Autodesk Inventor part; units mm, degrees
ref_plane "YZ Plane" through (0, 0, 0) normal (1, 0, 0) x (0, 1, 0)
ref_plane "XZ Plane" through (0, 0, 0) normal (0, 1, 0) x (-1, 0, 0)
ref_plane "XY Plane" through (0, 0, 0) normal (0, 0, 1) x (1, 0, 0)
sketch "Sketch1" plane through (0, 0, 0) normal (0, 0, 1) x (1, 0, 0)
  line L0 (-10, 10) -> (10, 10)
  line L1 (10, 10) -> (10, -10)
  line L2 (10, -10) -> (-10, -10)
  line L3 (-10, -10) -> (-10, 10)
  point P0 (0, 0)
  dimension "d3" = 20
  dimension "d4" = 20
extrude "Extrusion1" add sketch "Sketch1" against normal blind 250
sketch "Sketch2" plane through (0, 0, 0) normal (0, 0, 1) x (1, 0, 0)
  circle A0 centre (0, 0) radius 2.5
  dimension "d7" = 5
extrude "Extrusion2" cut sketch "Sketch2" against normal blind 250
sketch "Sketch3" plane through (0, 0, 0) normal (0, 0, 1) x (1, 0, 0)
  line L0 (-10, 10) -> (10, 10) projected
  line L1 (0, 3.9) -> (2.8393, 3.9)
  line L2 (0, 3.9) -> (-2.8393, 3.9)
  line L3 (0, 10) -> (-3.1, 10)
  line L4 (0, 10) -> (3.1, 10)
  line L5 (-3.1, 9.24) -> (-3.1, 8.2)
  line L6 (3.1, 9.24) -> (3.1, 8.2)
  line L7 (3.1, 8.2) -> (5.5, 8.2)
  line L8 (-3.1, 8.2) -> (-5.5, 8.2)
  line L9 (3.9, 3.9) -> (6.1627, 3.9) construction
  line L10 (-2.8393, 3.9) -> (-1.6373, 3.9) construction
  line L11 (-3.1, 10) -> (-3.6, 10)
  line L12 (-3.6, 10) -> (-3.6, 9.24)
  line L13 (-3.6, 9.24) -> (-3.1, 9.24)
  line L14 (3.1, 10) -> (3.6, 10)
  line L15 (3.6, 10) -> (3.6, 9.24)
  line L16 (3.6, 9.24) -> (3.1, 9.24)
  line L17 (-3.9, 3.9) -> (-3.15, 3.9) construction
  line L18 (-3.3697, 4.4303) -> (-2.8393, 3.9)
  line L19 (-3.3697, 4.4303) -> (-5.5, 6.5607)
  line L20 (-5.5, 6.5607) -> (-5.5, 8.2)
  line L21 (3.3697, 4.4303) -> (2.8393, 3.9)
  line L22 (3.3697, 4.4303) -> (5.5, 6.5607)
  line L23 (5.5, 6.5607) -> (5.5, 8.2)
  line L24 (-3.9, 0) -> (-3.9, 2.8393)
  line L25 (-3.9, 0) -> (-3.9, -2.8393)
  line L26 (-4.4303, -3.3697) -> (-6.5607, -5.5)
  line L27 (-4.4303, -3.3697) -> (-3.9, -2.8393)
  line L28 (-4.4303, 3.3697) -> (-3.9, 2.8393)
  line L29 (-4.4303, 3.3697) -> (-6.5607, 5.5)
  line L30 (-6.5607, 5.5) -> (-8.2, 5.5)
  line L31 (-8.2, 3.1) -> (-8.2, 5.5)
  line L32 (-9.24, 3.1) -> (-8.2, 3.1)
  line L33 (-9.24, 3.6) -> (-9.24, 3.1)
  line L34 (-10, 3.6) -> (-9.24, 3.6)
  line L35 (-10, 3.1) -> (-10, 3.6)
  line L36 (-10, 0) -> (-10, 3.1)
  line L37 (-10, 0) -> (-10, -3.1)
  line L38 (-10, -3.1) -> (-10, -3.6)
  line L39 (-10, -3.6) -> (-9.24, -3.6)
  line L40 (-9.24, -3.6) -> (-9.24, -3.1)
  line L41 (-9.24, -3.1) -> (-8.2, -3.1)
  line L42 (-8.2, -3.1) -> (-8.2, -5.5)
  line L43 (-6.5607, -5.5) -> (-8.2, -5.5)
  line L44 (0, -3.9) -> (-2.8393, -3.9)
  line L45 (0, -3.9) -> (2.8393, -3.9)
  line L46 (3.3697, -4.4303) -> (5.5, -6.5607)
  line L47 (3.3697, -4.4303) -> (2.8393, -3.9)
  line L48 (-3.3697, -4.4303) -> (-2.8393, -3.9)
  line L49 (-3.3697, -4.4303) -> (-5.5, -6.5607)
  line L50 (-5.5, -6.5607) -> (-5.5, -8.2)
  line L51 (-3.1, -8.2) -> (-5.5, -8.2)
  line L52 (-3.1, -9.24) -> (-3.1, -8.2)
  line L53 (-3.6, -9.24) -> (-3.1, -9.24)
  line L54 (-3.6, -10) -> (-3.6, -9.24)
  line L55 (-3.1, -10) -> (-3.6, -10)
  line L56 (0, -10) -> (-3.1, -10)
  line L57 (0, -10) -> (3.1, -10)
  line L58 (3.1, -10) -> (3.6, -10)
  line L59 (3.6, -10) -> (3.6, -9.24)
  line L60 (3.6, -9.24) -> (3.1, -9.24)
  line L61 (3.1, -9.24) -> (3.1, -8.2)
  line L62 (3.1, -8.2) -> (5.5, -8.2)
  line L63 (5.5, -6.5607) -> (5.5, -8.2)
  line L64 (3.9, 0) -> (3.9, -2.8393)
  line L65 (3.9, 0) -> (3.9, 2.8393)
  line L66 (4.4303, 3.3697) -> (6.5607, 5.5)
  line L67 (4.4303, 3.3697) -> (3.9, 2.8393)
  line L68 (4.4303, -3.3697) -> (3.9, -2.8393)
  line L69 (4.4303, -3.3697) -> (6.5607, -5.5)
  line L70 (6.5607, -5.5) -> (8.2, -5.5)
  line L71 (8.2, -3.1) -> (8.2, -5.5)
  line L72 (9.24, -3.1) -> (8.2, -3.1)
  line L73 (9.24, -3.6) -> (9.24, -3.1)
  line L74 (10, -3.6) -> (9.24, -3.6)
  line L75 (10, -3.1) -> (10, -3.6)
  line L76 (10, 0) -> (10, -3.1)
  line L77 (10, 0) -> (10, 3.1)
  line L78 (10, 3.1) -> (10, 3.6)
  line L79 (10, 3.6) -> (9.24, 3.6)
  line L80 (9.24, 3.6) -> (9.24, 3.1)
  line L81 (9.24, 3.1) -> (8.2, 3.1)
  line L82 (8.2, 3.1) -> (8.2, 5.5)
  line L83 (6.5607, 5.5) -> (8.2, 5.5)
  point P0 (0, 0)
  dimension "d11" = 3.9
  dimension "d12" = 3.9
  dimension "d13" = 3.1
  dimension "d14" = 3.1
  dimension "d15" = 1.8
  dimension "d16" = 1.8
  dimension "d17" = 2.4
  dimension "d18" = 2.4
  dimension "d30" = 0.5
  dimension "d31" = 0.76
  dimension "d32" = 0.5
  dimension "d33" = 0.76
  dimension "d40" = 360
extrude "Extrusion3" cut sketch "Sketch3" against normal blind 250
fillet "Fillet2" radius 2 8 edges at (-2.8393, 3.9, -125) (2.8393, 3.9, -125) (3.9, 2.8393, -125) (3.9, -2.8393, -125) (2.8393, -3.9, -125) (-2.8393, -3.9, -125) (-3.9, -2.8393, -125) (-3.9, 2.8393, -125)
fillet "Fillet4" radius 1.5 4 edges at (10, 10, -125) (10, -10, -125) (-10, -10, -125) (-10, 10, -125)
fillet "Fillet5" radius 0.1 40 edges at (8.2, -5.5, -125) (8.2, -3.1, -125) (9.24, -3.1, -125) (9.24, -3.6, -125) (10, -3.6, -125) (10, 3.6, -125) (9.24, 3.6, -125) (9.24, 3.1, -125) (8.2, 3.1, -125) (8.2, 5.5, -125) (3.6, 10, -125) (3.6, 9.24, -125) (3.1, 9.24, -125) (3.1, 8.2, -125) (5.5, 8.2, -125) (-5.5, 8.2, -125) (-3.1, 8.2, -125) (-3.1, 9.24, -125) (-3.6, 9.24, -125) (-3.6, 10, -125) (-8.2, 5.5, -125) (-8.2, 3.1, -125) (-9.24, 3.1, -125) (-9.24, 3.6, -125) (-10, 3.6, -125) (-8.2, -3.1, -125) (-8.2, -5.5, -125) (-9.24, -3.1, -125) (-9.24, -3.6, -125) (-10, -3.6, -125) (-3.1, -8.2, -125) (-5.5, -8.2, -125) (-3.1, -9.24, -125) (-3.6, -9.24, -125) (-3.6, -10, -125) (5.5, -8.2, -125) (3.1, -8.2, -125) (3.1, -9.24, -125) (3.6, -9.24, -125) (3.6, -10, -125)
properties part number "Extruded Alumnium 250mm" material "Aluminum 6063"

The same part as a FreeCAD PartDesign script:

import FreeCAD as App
import Part
import Sketcher
Q = App.Units.Quantity


def edges_at(feature, points):
    """Names of the edges that pass closest to the given points."""
    edges = feature.Shape.Edges
    near = lambda p: min(range(len(edges)), key=lambda i: edges[i].distToShape(Part.Vertex(*p))[0])
    return sorted({f"Edge{near(p) + 1}" for p in points})


def add_polygon(sketch, points):
    """Adds a closed chain of lines whose ends are joined by coincident constraints."""
    first, n = sketch.GeometryCount, len(points)
    for a, b in zip(points, points[1:] + points[:1]):
        sketch.addGeometry(Part.LineSegment(App.Vector(*a, 0), App.Vector(*b, 0)), False)
    for i in range(n):
        sketch.addConstraint(Sketcher.Constraint("Coincident", first + i, 2, first + (i + 1) % n, 1))

doc = App.newDocument("Part")
params = doc.addObject("Spreadsheet::Sheet", "Params")
for row, (alias, value) in enumerate([
    ("sketch1_width", "20 mm"),
    ("pad1_length", "250 mm"),
    ("sketch2_diameter", "5 mm"),
    ("pocket1_length", "250 mm"),
    ("sketch3_width", "0.5 mm"),
    ("sketch3_width2", "2.4 mm"),
    ("sketch3_width3", "0.76 mm"),
    ("sketch3_width4", "1.04 mm"),
    ("sketch3_length", "0.75 mm"),
    ("pocket2_length", "250 mm"),
    ("fillet_radius", "2 mm"),
    ("fillet2_radius", "1.5 mm"),
    ("fillet3_radius", "0.1 mm"),
], start=1):
    params.set(f"A{row}", alias)
    params.set(f"B{row}", "=" + value)
    params.setAlias(f"B{row}", alias)

body = doc.addObject("PartDesign::Body", "Body")

sketch1 = doc.addObject("Sketcher::SketchObject", "Sketch")
body.addObject(sketch1)
sketch1.AttachmentSupport = (doc.XY_Plane, [""])
sketch1.MapMode = "FlatFace"
add_polygon(sketch1, [(10, 10), (-10, 10), (-10, -10), (10, -10)])
sketch1.addConstraint(Sketcher.Constraint("Horizontal", 0))
sketch1.addConstraint(Sketcher.Constraint("Vertical", 1))
sketch1.addConstraint(Sketcher.Constraint("Horizontal", 2))
sketch1.addConstraint(Sketcher.Constraint("Vertical", 3))
sketch1.addConstraint(Sketcher.Constraint("Symmetric", 0, 2, 2, 2, -1, 1))
sketch1.addConstraint(Sketcher.Constraint("Equal", 2, 1))
sketch1.addConstraint(Sketcher.Constraint("DistanceX", 0, 2, 0, 1, Q("20 mm")))
sketch1.setExpression("Constraints[10]", "Params.sketch1_width")
pad1 = doc.addObject("PartDesign::Pad", "Pad")
body.addObject(pad1)
pad1.Profile = sketch1
pad1.setExpression("Length", "Params.pad1_length")
pad1.Reversed = True

sketch2 = doc.addObject("Sketcher::SketchObject", "Sketch001")
body.addObject(sketch2)
sketch2.AttachmentSupport = (doc.XY_Plane, [""])
sketch2.MapMode = "FlatFace"
sketch2.addGeometry(Part.Circle(App.Vector(0, 0, 0), App.Vector(0, 0, 1), 2.5), False)
sketch2.addConstraint(Sketcher.Constraint("Coincident", 0, 3, -1, 1))
sketch2.addConstraint(Sketcher.Constraint("Diameter", 0, Q("5 mm")))
sketch2.setExpression("Constraints[1]", "Params.sketch2_diameter")
pocket1 = doc.addObject("PartDesign::Pocket", "Pocket")
body.addObject(pocket1)
pocket1.Profile = sketch2
pocket1.setExpression("Length", "Params.pocket1_length")

sketch3 = doc.addObject("Sketcher::SketchObject", "Sketch002")
body.addObject(sketch3)
sketch3.AttachmentSupport = (doc.XY_Plane, [""])
sketch3.MapMode = "FlatFace"
add_polygon(sketch3, [(3.6, 10), (-3.6, 10), (-3.6, 9.2), (-3.1, 9.2), (-3.1, 8.2), (-5.5, 8.2), (-5.5, 6.6), (-3.4, 4.4), (-2.8, 3.9), (2.8, 3.9), (3.4, 4.4), (5.5, 6.6), (5.5, 8.2), (3.1, 8.2), (3.1, 9.2), (3.6, 9.2)])
add_polygon(sketch3, [(-3.9, -2.8), (-3.9, 2.8), (-4.4, 3.4), (-6.6, 5.5), (-8.2, 5.5), (-8.2, 3.1), (-9.2, 3.1), (-9.2, 3.6), (-10, 3.6), (-10, -3.6), (-9.2, -3.6), (-9.2, -3.1), (-8.2, -3.1), (-8.2, -5.5), (-6.6, -5.5), (-4.4, -3.4)])
add_polygon(sketch3, [(2.8, -3.9), (-2.8, -3.9), (-3.4, -4.4), (-5.5, -6.6), (-5.5, -8.2), (-3.1, -8.2), (-3.1, -9.2), (-3.6, -9.2), (-3.6, -10), (3.6, -10), (3.6, -9.2), (3.1, -9.2), (3.1, -8.2), (5.5, -8.2), (5.5, -6.6), (3.4, -4.4)])
add_polygon(sketch3, [(3.9, 2.8), (3.9, -2.8), (4.4, -3.4), (6.6, -5.5), (8.2, -5.5), (8.2, -3.1), (9.2, -3.1), (9.2, -3.6), (10, -3.6), (10, 3.6), (9.2, 3.6), (9.2, 3.1), (8.2, 3.1), (8.2, 5.5), (6.6, 5.5), (4.4, 3.4)])
sketch3.addConstraint(Sketcher.Constraint("Horizontal", 0))
sketch3.addConstraint(Sketcher.Constraint("Vertical", 1))
sketch3.addConstraint(Sketcher.Constraint("Horizontal", 2))
sketch3.addConstraint(Sketcher.Constraint("Vertical", 3))
sketch3.addConstraint(Sketcher.Constraint("Horizontal", 4))
sketch3.addConstraint(Sketcher.Constraint("Vertical", 5))
sketch3.addConstraint(Sketcher.Constraint("Horizontal", 8))
sketch3.addConstraint(Sketcher.Constraint("Vertical", 11))
sketch3.addConstraint(Sketcher.Constraint("Horizontal", 12))
sketch3.addConstraint(Sketcher.Constraint("Vertical", 13))
sketch3.addConstraint(Sketcher.Constraint("Horizontal", 14))
sketch3.addConstraint(Sketcher.Constraint("Vertical", 15))
sketch3.addConstraint(Sketcher.Constraint("Vertical", 16))
sketch3.addConstraint(Sketcher.Constraint("Horizontal", 19))
sketch3.addConstraint(Sketcher.Constraint("Vertical", 20))
sketch3.addConstraint(Sketcher.Constraint("Horizontal", 21))
sketch3.addConstraint(Sketcher.Constraint("Vertical", 22))
sketch3.addConstraint(Sketcher.Constraint("Horizontal", 23))
sketch3.addConstraint(Sketcher.Constraint("Vertical", 24))
sketch3.addConstraint(Sketcher.Constraint("Horizontal", 25))
sketch3.addConstraint(Sketcher.Constraint("Vertical", 26))
sketch3.addConstraint(Sketcher.Constraint("Horizontal", 27))
sketch3.addConstraint(Sketcher.Constraint("Vertical", 28))
sketch3.addConstraint(Sketcher.Constraint("Horizontal", 29))
sketch3.addConstraint(Sketcher.Constraint("Horizontal", 32))
sketch3.addConstraint(Sketcher.Constraint("Vertical", 35))
sketch3.addConstraint(Sketcher.Constraint("Horizontal", 36))
sketch3.addConstraint(Sketcher.Constraint("Vertical", 37))
sketch3.addConstraint(Sketcher.Constraint("Horizontal", 38))
sketch3.addConstraint(Sketcher.Constraint("Vertical", 39))
sketch3.addConstraint(Sketcher.Constraint("Horizontal", 40))
sketch3.addConstraint(Sketcher.Constraint("Vertical", 41))
sketch3.addConstraint(Sketcher.Constraint("Horizontal", 42))
sketch3.addConstraint(Sketcher.Constraint("Vertical", 43))
sketch3.addConstraint(Sketcher.Constraint("Horizontal", 44))
sketch3.addConstraint(Sketcher.Constraint("Vertical", 45))
sketch3.addConstraint(Sketcher.Constraint("Vertical", 48))
sketch3.addConstraint(Sketcher.Constraint("Horizontal", 51))
sketch3.addConstraint(Sketcher.Constraint("Vertical", 52))
sketch3.addConstraint(Sketcher.Constraint("Horizontal", 53))
sketch3.addConstraint(Sketcher.Constraint("Vertical", 54))
sketch3.addConstraint(Sketcher.Constraint("Horizontal", 55))
sketch3.addConstraint(Sketcher.Constraint("Vertical", 56))
sketch3.addConstraint(Sketcher.Constraint("Horizontal", 57))
sketch3.addConstraint(Sketcher.Constraint("Vertical", 58))
sketch3.addConstraint(Sketcher.Constraint("Horizontal", 59))
sketch3.addConstraint(Sketcher.Constraint("Vertical", 60))
sketch3.addConstraint(Sketcher.Constraint("Horizontal", 61))
sketch3.addConstraint(Sketcher.Constraint("Symmetric", 8, 2, 32, 2, -1, 1))
sketch3.addConstraint(Sketcher.Constraint("Symmetric", 9, 2, 33, 2, -1, 1))
sketch3.addConstraint(Sketcher.Constraint("Symmetric", 10, 2, 34, 2, -1, 1))
sketch3.addConstraint(Sketcher.Constraint("Symmetric", 12, 2, 36, 2, -1, 1))
sketch3.addConstraint(Sketcher.Constraint("Symmetric", 14, 2, 38, 2, -1, 1))
sketch3.addConstraint(Sketcher.Constraint("Symmetric", 0, 2, 40, 2, -1, 1))
sketch3.addConstraint(Sketcher.Constraint("Symmetric", 2, 2, 42, 2, -1, 1))
sketch3.addConstraint(Sketcher.Constraint("Symmetric", 4, 2, 44, 2, -1, 1))
sketch3.addConstraint(Sketcher.Constraint("Symmetric", 6, 2, 46, 2, -1, 1))
sketch3.addConstraint(Sketcher.Constraint("Symmetric", 16, 2, 48, 2, -1, 1))
sketch3.addConstraint(Sketcher.Constraint("Symmetric", 17, 2, 49, 2, -1, 1))
sketch3.addConstraint(Sketcher.Constraint("Symmetric", 18, 2, 50, 2, -1, 1))
sketch3.addConstraint(Sketcher.Constraint("Symmetric", 20, 2, 52, 2, -1, 1))
sketch3.addConstraint(Sketcher.Constraint("Symmetric", 22, 2, 54, 2, -1, 1))
sketch3.addConstraint(Sketcher.Constraint("Symmetric", 24, 2, 56, 2, -1, 1))
sketch3.addConstraint(Sketcher.Constraint("Symmetric", 26, 2, 58, 2, -1, 1))
sketch3.addConstraint(Sketcher.Constraint("Symmetric", 28, 2, 60, 2, -1, 1))
sketch3.addConstraint(Sketcher.Constraint("Symmetric", 30, 2, 62, 2, -1, 1))
sketch3.addConstraint(Sketcher.Constraint("Symmetric", 6, 2, 9, 2, -2))
sketch3.addConstraint(Sketcher.Constraint("Symmetric", 5, 2, 10, 2, -2))
sketch3.addConstraint(Sketcher.Constraint("Symmetric", 3, 2, 12, 2, -2))
sketch3.addConstraint(Sketcher.Constraint("Symmetric", 1, 2, 14, 2, -2))
sketch3.addConstraint(Sketcher.Constraint("Symmetric", 30, 2, 49, 2, -2))
sketch3.addConstraint(Sketcher.Constraint("Symmetric", 29, 2, 50, 2, -2))
sketch3.addConstraint(Sketcher.Constraint("Symmetric", 27, 2, 52, 2, -2))
sketch3.addConstraint(Sketcher.Constraint("Symmetric", 25, 2, 54, 2, -2))
sketch3.addConstraint(Sketcher.Constraint("Parallel", 6, 7))
sketch3.addConstraint(Sketcher.Constraint("Perpendicular", 7, 9))
sketch3.addConstraint(Sketcher.Constraint("Parallel", 9, 10))
sketch3.addConstraint(Sketcher.Constraint("Perpendicular", 10, 17))
sketch3.addConstraint(Sketcher.Constraint("Parallel", 17, 18))
sketch3.addConstraint(Sketcher.Constraint("Parallel", 30, 31))
sketch3.addConstraint(Sketcher.Constraint("Perpendicular", 34, 46))
sketch3.addConstraint(Sketcher.Constraint("Parallel", 46, 47))
sketch3.addConstraint(Sketcher.Constraint("Perpendicular", 50, 62))
sketch3.addConstraint(Sketcher.Constraint("Parallel", 62, 63))
sketch3.addConstraint(Sketcher.Constraint("Equal", 57, 1))
sketch3.addConstraint(Sketcher.Constraint("Equal", 59, 3))
sketch3.addConstraint(Sketcher.Constraint("Equal", 61, 5))
sketch3.addConstraint(Sketcher.Constraint("Equal", 32, 16))
sketch3.addConstraint(Sketcher.Constraint("Equal", 44, 20))
sketch3.addConstraint(Sketcher.Constraint("Equal", 42, 22))
sketch3.addConstraint(Sketcher.Constraint("Equal", 40, 24))
sketch3.addConstraint(Sketcher.Constraint("Equal", 9, 17))
sketch3.addConstraint(Sketcher.Constraint("DistanceX", 2, 1, 2, 2, Q("0.5 mm")))
sketch3.addConstraint(Sketcher.Constraint("DistanceX", 4, 2, 4, 1, Q("2.4 mm")))
sketch3.addConstraint(Sketcher.Constraint("DistanceX", 23, 2, 23, 1, Q("0.76 mm")))
sketch3.addConstraint(Sketcher.Constraint("DistanceX", 2, 2, -1, 1, Q("3.1 mm")))
sketch3.addConstraint(Sketcher.Constraint("DistanceY", -1, 1, 7, 2, Q("3.9 mm")))
sketch3.addConstraint(Sketcher.Constraint("DistanceX", 16, 2, -1, 1, Q("3.9 mm")))
sketch3.addConstraint(Sketcher.Constraint("DistanceY", -1, 1, 0, 2, Q("10 mm")))
sketch3.addConstraint(Sketcher.Constraint("DistanceX", 21, 2, 21, 1, Q("1.04 mm")))
sketch3.addConstraint(Sketcher.Constraint("Distance", 7, Q("0.75 mm")))
sketch3.addConstraint(Sketcher.Constraint("DistanceX", 8, 1, 8, 2, Q("5.6786 mm")))
sketch3.setExpression("Constraints[156]", "Params.sketch3_width")
sketch3.setExpression("Constraints[157]", "Params.sketch3_width2")
sketch3.setExpression("Constraints[158]", "Params.sketch3_width3")
sketch3.setExpression("Constraints[163]", "Params.sketch3_width4")
sketch3.setExpression("Constraints[164]", "Params.sketch3_length")
pocket2 = doc.addObject("PartDesign::Pocket", "Pocket001")
body.addObject(pocket2)
pocket2.Profile = sketch3
pocket2.setExpression("Length", "Params.pocket2_length")
doc.recompute()

fillet = doc.addObject("PartDesign::Fillet", "Fillet")
body.addObject(fillet)
fillet.Base = (pocket2, edges_at(pocket2, [
    (-2.839, 3.9, -125),
    (2.839, 3.9, -125),
    (3.9, 2.839, -125),
    (3.9, -2.839, -125),
    (2.839, -3.9, -125),
    (-2.839, -3.9, -125),
    (-3.9, -2.839, -125),
    (-3.9, 2.839, -125),
]))
fillet.setExpression("Radius", "Params.fillet_radius")
doc.recompute()

fillet2 = doc.addObject("PartDesign::Fillet", "Fillet001")
body.addObject(fillet2)
fillet2.Base = (fillet, edges_at(fillet, [
    (10, 10, -125),
    (10, -10, -125),
    (-10, -10, -125),
    (-10, 10, -125),
]))
fillet2.setExpression("Radius", "Params.fillet2_radius")
doc.recompute()

fillet3 = doc.addObject("PartDesign::Fillet", "Fillet002")
body.addObject(fillet3)
fillet3.Base = (fillet2, edges_at(fillet2, [
    (8.2, -5.5, -125),
    (8.2, -3.1, -125),
    (9.24, -3.1, -125),
    (9.24, -3.6, -125),
    (10, -3.6, -125),
    (10, 3.6, -125),
    (9.24, 3.6, -125),
    (9.24, 3.1, -125),
    (8.2, 3.1, -125),
    (8.2, 5.5, -125),
    (3.6, 10, -125),
    (3.6, 9.24, -125),
    (3.1, 9.24, -125),
    (3.1, 8.2, -125),
    (5.5, 8.2, -125),
    (-5.5, 8.2, -125),
    (-3.1, 8.2, -125),
    (-3.1, 9.24, -125),
    (-3.6, 9.24, -125),
    (-3.6, 10, -125),
    (-8.2, 5.5, -125),
    (-8.2, 3.1, -125),
    (-9.24, 3.1, -125),
    (-9.24, 3.6, -125),
    (-10, 3.6, -125),
    (-8.2, -3.1, -125),
    (-8.2, -5.5, -125),
    (-9.24, -3.1, -125),
    (-9.24, -3.6, -125),
    (-10, -3.6, -125),
    (-3.1, -8.2, -125),
    (-5.5, -8.2, -125),
    (-3.1, -9.24, -125),
    (-3.6, -9.24, -125),
    (-3.6, -10, -125),
    (5.5, -8.2, -125),
    (3.1, -8.2, -125),
    (3.1, -9.24, -125),
    (3.6, -9.24, -125),
    (3.6, -10, -125),
]))
fillet3.setExpression("Radius", "Params.fillet3_radius")

doc.recompute()
